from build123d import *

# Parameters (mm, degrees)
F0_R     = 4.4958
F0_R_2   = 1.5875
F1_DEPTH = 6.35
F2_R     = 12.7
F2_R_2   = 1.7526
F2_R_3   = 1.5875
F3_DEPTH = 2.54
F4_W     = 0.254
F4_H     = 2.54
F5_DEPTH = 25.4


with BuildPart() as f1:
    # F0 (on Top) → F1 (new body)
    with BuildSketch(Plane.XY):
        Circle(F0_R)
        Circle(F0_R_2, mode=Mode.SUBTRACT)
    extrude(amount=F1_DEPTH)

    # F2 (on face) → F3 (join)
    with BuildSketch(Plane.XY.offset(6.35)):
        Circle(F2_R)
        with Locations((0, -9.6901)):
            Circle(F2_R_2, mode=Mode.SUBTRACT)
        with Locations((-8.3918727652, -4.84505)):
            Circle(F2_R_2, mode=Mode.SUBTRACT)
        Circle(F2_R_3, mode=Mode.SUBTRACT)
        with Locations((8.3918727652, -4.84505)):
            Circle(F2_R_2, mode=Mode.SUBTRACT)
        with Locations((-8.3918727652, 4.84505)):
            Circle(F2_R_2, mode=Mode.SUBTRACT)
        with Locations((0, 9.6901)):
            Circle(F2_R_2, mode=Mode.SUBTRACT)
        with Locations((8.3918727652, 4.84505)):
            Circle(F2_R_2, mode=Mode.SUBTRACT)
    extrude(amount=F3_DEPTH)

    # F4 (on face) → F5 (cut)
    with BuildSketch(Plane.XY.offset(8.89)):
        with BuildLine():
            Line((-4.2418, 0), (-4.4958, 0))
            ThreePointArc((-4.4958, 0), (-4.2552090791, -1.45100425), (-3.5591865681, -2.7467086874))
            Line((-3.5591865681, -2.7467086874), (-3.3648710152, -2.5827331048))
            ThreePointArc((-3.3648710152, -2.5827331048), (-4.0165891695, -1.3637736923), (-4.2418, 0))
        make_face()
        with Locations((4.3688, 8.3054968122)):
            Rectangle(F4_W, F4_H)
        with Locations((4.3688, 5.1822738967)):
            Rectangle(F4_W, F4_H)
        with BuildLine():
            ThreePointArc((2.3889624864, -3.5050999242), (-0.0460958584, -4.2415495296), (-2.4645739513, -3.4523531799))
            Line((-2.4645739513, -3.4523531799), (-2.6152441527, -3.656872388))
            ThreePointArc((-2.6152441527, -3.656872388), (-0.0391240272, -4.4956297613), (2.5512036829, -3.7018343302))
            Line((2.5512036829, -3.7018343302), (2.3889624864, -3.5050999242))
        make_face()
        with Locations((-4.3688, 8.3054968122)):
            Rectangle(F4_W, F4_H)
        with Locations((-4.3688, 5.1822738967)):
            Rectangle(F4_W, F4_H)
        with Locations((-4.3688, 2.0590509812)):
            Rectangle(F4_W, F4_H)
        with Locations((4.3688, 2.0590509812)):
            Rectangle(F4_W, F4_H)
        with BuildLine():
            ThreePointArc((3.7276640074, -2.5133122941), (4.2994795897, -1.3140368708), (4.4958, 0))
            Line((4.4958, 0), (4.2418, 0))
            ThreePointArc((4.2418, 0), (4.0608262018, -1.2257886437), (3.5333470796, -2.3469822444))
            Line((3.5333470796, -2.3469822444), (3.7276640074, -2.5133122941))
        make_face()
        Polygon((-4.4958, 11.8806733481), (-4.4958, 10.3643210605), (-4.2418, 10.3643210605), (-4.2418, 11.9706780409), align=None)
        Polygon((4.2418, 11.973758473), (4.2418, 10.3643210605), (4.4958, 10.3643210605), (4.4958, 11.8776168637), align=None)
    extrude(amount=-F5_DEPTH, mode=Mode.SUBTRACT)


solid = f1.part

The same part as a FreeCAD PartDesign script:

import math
import FreeCAD as App
import Part
import Sketcher
from FreeCAD import Vector
Q = App.Units.Quantity

doc = App.newDocument("Part")
body = doc.addObject("PartDesign::Body", "Body")

# Sketch on XY plane
sketch1 = body.newObject("Sketcher::SketchObject", "Sketch")
sketch1.AttachmentSupport = (doc.getObject("XY_Plane"), [""])
sketch1.MapMode = "FlatFace"
sketch1.addGeometry([
    Part.Circle(Vector(0, 0, 0), Vector(0, 0, 1), 4.5),
    Part.Circle(Vector(0, 0, 0), Vector(0, 0, 1), 1.6),
], False)
sketch1.addConstraint([
    Sketcher.Constraint("Coincident", 0, 3, -1, 1),
    Sketcher.Constraint("Coincident", 1, 3, -1, 1),
    Sketcher.Constraint("Diameter", 0, Q("0.354 in")),
    Sketcher.Constraint("Diameter", 1, Q("0.125 in")),
])
pad1 = body.newObject("PartDesign::Pad", "Pad")
pad1.Profile = sketch1
pad1.Length = Q("0.25 in")

# Sketch on XY plane
sketch2 = body.newObject("Sketcher::SketchObject", "Sketch001")
sketch2.AttachmentSupport = (doc.getObject("XY_Plane"), [""])
sketch2.MapMode = "FlatFace"
sketch2.AttachmentOffset = App.Placement(Vector(0, 0, 0.25 * 25.4), App.Rotation())
sketch2.addGeometry([
    Part.Circle(Vector(0, 0, 0), Vector(0, 0, 1), 12.7),  # 0
    Part.Circle(Vector(-8.4, -4.8, 0), Vector(0, 0, 1), 1.8),  # 1
    Part.Circle(Vector(0, -9.7, 0), Vector(0, 0, 1), 1.8),  # 2
    Part.Circle(Vector(8.4, -4.8, 0), Vector(0, 0, 1), 1.8),  # 3
    Part.Circle(Vector(-8.4, 4.8, 0), Vector(0, 0, 1), 1.8),  # 4
    Part.Circle(Vector(0, 0, 0), Vector(0, 0, 1), 1.6),  # 5
    Part.Circle(Vector(8.4, 4.8, 0), Vector(0, 0, 1), 1.8),  # 6
    Part.Circle(Vector(0, 9.7, 0), Vector(0, 0, 1), 1.8),  # 7
], False)
sketch2.addConstraint([
    Sketcher.Constraint("Coincident", 0, 3, -1, 1),
    Sketcher.Constraint("Coincident", 5, 3, -1, 1),
    Sketcher.Constraint("Equal", 1, 2),
    Sketcher.Constraint("Equal", 2, 3),
    Sketcher.Constraint("Equal", 3, 4),
    Sketcher.Constraint("Equal", 4, 6),
    Sketcher.Constraint("Equal", 6, 7),
    Sketcher.Constraint("Symmetric", 3, 3, 4, 3, -1, 1),
    Sketcher.Constraint("Symmetric", 1, 3, 6, 3, -1, 1),
    Sketcher.Constraint("Symmetric", 2, 3, 7, 3, -1, 1),
    Sketcher.Constraint("Symmetric", 1, 3, 3, 3, -2),
    Sketcher.Constraint("PointOnObject", 2, 3, -2),
    Sketcher.Constraint("Diameter", 0, Q("1 in")),
    Sketcher.Constraint("Diameter", 1, Q("0.138 in")),
    Sketcher.Constraint("Diameter", 5, Q("0.125 in")),
    Sketcher.Constraint("DistanceY", 2, 3, -1, 1, Q("0.3815 in")),
    Sketcher.Constraint("DistanceY", 1, 3, 4, 3, Q("0.3815 in")),
    Sketcher.Constraint("DistanceX", 1, 3, -1, 1, Q("8.391873 mm")),
])
pad2 = body.newObject("PartDesign::Pad", "Pad001")
pad2.Profile = sketch2
pad2.Length = Q("0.1 in")

# Sketch on XY plane
sketch3 = body.newObject("Sketcher::SketchObject", "Sketch002")
sketch3.AttachmentSupport = (doc.getObject("XY_Plane"), [""])
sketch3.MapMode = "FlatFace"
sketch3.AttachmentOffset = App.Placement(Vector(0, 0, 0.35 * 25.4), App.Rotation())
sketch3.addGeometry([
    Part.LineSegment(Vector(-4.24, 0, 0), Vector(-4.5, 0, 0)),  # 0
    Part.ArcOfCircle(Part.Circle(Vector(0, 0, 0), Vector(0, 0, 1), 4.5), math.radians(180), math.radians(218)),  # 1
    Part.LineSegment(Vector(-3.56, -2.75, 0), Vector(-3.36, -2.58, 0)),  # 2
    Part.ArcOfCircle(Part.Circle(Vector(0, 0, 0), Vector(0, 0, 1), 4.24), math.radians(180), math.radians(218)),  # 3
    Part.LineSegment(Vector(4.24, 9.58, 0), Vector(4.24, 7.04, 0)),  # 4
    Part.LineSegment(Vector(4.24, 7.04, 0), Vector(4.5, 7.04, 0)),  # 5
    Part.LineSegment(Vector(4.5, 7.04, 0), Vector(4.5, 9.58, 0)),  # 6
    Part.LineSegment(Vector(4.5, 9.58, 0), Vector(4.24, 9.58, 0)),  # 7
    Part.LineSegment(Vector(4.24, 6.45, 0), Vector(4.24, 3.91, 0)),  # 8
    Part.LineSegment(Vector(4.24, 3.91, 0), Vector(4.5, 3.91, 0)),  # 9
    Part.LineSegment(Vector(4.5, 3.91, 0), Vector(4.5, 6.45, 0)),  # 10
    Part.LineSegment(Vector(4.5, 6.45, 0), Vector(4.24, 6.45, 0)),  # 11
    Part.ArcOfCircle(Part.Circle(Vector(0, 0, 0), Vector(0, 0, 1), 4.24), math.radians(-126), math.radians(-56)),  # 12
    Part.LineSegment(Vector(-2.46, -3.45, 0), Vector(-2.62, -3.66, 0)),  # 13
    Part.ArcOfCircle(Part.Circle(Vector(0, 0, 0), Vector(0, 0, 1), 4.5), math.radians(-126), math.radians(-55)),  # 14
    Part.LineSegment(Vector(2.55, -3.7, 0), Vector(2.39, -3.51, 0)),  # 15
    Part.LineSegment(Vector(-4.5, 9.58, 0), Vector(-4.5, 7.04, 0)),  # 16
    Part.LineSegment(Vector(-4.5, 7.04, 0), Vector(-4.24, 7.04, 0)),  # 17
    Part.LineSegment(Vector(-4.24, 7.04, 0), Vector(-4.24, 9.58, 0)),  # 18
    Part.LineSegment(Vector(-4.24, 9.58, 0), Vector(-4.5, 9.58, 0)),  # 19
    Part.LineSegment(Vector(-4.5, 6.45, 0), Vector(-4.5, 3.91, 0)),  # 20
    Part.LineSegment(Vector(-4.5, 3.91, 0), Vector(-4.24, 3.91, 0)),  # 21
    Part.LineSegment(Vector(-4.24, 3.91, 0), Vector(-4.24, 6.45, 0)),  # 22
    Part.LineSegment(Vector(-4.24, 6.45, 0), Vector(-4.5, 6.45, 0)),  # 23
    Part.LineSegment(Vector(-4.5, 3.33, 0), Vector(-4.5, 0.79, 0)),  # 24
    Part.LineSegment(Vector(-4.5, 0.79, 0), Vector(-4.24, 0.79, 0)),  # 25
    Part.LineSegment(Vector(-4.24, 0.79, 0), Vector(-4.24, 3.33, 0)),  # 26
    Part.LineSegment(Vector(-4.24, 3.33, 0), Vector(-4.5, 3.33, 0)),  # 27
    Part.LineSegment(Vector(4.24, 3.33, 0), Vector(4.24, 0.79, 0)),  # 28
    Part.LineSegment(Vector(4.24, 0.79, 0), Vector(4.5, 0.79, 0)),  # 29
    Part.LineSegment(Vector(4.5, 0.79, 0), Vector(4.5, 3.33, 0)),  # 30
    Part.LineSegment(Vector(4.5, 3.33, 0), Vector(4.24, 3.33, 0)),  # 31
    Part.ArcOfCircle(Part.Circle(Vector(0, 0, 0), Vector(0, 0, 1), 4.5), math.radians(-34), math.radians(0)),  # 32
    Part.LineSegment(Vector(4.5, 0, 0), Vector(4.24, 0, 0)),  # 33
    Part.ArcOfCircle(Part.Circle(Vector(0, 0, 0), Vector(0, 0, 1), 4.24), math.radians(-34), math.radians(0)),  # 34
    Part.LineSegment(Vector(3.53, -2.35, 0), Vector(3.73, -2.51, 0)),  # 35
    Part.LineSegment(Vector(-4.5, 11.88, 0), Vector(-4.5, 10.36, 0)),  # 36
    Part.LineSegment(Vector(-4.5, 10.36, 0), Vector(-4.24, 10.36, 0)),  # 37
    Part.LineSegment(Vector(-4.24, 10.36, 0), Vector(-4.24, 11.97, 0)),  # 38
    Part.LineSegment(Vector(-4.24, 11.97, 0), Vector(-4.5, 11.88, 0)),  # 39
    Part.LineSegment(Vector(4.24, 11.97, 0), Vector(4.24, 10.36, 0)),  # 40
    Part.LineSegment(Vector(4.24, 10.36, 0), Vector(4.5, 10.36, 0)),  # 41
    Part.LineSegment(Vector(4.5, 10.36, 0), Vector(4.5, 11.88, 0)),  # 42
    Part.LineSegment(Vector(4.5, 11.88, 0), Vector(4.24, 11.97, 0)),  # 43
], False)
sketch3.addConstraint([
    Sketcher.Constraint("Coincident", 0, 2, 1, 1),
    Sketcher.Constraint("Coincident", 1, 2, 2, 1),
    Sketcher.Constraint("Coincident", 2, 2, 3, 2),
    Sketcher.Constraint("Coincident", 3, 1, 0, 1),
    Sketcher.Constraint("Coincident", 4, 2, 5, 1),
    Sketcher.Constraint("Coincident", 5, 2, 6, 1),
    Sketcher.Constraint("Coincident", 6, 2, 7, 1),
    Sketcher.Constraint("Coincident", 7, 2, 4, 1),
    Sketcher.Constraint("Coincident", 8, 2, 9, 1),
    Sketcher.Constraint("Coincident", 9, 2, 10, 1),
    Sketcher.Constraint("Coincident", 10, 2, 11, 1),
    Sketcher.Constraint("Coincident", 11, 2, 8, 1),
    Sketcher.Constraint("Coincident", 12, 1, 13, 1),
    Sketcher.Constraint("Coincident", 13, 2, 14, 1),
    Sketcher.Constraint("Coincident", 14, 2, 15, 1),
    Sketcher.Constraint("Coincident", 15, 2, 12, 2),
    Sketcher.Constraint("Coincident", 16, 2, 17, 1),
    Sketcher.Constraint("Coincident", 17, 2, 18, 1),
    Sketcher.Constraint("Coincident", 18, 2, 19, 1),
    Sketcher.Constraint("Coincident", 19, 2, 16, 1),
    Sketcher.Constraint("Coincident", 20, 2, 21, 1),
    Sketcher.Constraint("Coincident", 21, 2, 22, 1),
    Sketcher.Constraint("Coincident", 22, 2, 23, 1),
    Sketcher.Constraint("Coincident", 23, 2, 20, 1),
    Sketcher.Constraint("Coincident", 24, 2, 25, 1),
    Sketcher.Constraint("Coincident", 25, 2, 26, 1),
    Sketcher.Constraint("Coincident", 26, 2, 27, 1),
    Sketcher.Constraint("Coincident", 27, 2, 24, 1),
    Sketcher.Constraint("Coincident", 28, 2, 29, 1),
    Sketcher.Constraint("Coincident", 29, 2, 30, 1),
    Sketcher.Constraint("Coincident", 30, 2, 31, 1),
    Sketcher.Constraint("Coincident", 31, 2, 28, 1),
    Sketcher.Constraint("Coincident", 32, 2, 33, 1),
    Sketcher.Constraint("Coincident", 33, 2, 34, 2),
    Sketcher.Constraint("Coincident", 34, 1, 35, 1),
    Sketcher.Constraint("Coincident", 35, 2, 32, 1),
    Sketcher.Constraint("Coincident", 36, 2, 37, 1),
    Sketcher.Constraint("Coincident", 37, 2, 38, 1),
    Sketcher.Constraint("Coincident", 38, 2, 39, 1),
    Sketcher.Constraint("Coincident", 39, 2, 36, 1),
    Sketcher.Constraint("Coincident", 40, 2, 41, 1),
    Sketcher.Constraint("Coincident", 41, 2, 42, 1),
    Sketcher.Constraint("Coincident", 42, 2, 43, 1),
    Sketcher.Constraint("Coincident", 43, 2, 40, 1),
    Sketcher.Constraint("Horizontal", 0),
    Sketcher.Constraint("Vertical", 4),
    Sketcher.Constraint("Horizontal", 5),
    Sketcher.Constraint("Vertical", 6),
    Sketcher.Constraint("Horizontal", 7),
    Sketcher.Constraint("Vertical", 8),
    Sketcher.Constraint("Horizontal", 9),
    Sketcher.Constraint("Vertical", 10),
    Sketcher.Constraint("Horizontal", 11),
    Sketcher.Constraint("Vertical", 16),
    Sketcher.Constraint("Horizontal", 17),
    Sketcher.Constraint("Vertical", 18),
    Sketcher.Constraint("Horizontal", 19),
    Sketcher.Constraint("Vertical", 20),
    Sketcher.Constraint("Horizontal", 21),
    Sketcher.Constraint("Vertical", 22),
    Sketcher.Constraint("Horizontal", 23),
    Sketcher.Constraint("Vertical", 24),
    Sketcher.Constraint("Horizontal", 25),
    Sketcher.Constraint("Vertical", 26),
    Sketcher.Constraint("Horizontal", 27),
    Sketcher.Constraint("Vertical", 28),
    Sketcher.Constraint("Horizontal", 29),
    Sketcher.Constraint("Vertical", 30),
    Sketcher.Constraint("Horizontal", 31),
    Sketcher.Constraint("Horizontal", 33),
    Sketcher.Constraint("Vertical", 36),
    Sketcher.Constraint("Horizontal", 37),
    Sketcher.Constraint("Vertical", 38),
    Sketcher.Constraint("Vertical", 40),
    Sketcher.Constraint("Horizontal", 41),
    Sketcher.Constraint("Vertical", 42),
    Sketcher.Constraint("Coincident", 1, 3, -1, 1),
    Sketcher.Constraint("Coincident", 3, 3, -1, 1),
    Sketcher.Constraint("Coincident", 12, 3, -1, 1),
    Sketcher.Constraint("Coincident", 14, 3, -1, 1),
    Sketcher.Constraint("Coincident", 32, 3, -1, 1),
    Sketcher.Constraint("Coincident", 34, 3, -1, 1),
    Sketcher.Constraint("Equal", 3, 12),
    Sketcher.Constraint("Equal", 1, 14),
    Sketcher.Constraint("Equal", 14, 32),
    Sketcher.Constraint("Equal", 12, 34),
    Sketcher.Constraint("Symmetric", 5, 2, 16, 2, -2),
    Sketcher.Constraint("Symmetric", 7, 2, 18, 2, -2),
    Sketcher.Constraint("Symmetric", 9, 2, 20, 2, -2),
    Sketcher.Constraint("Symmetric", 11, 2, 22, 2, -2),
    Sketcher.Constraint("Symmetric", 25, 2, 28, 2, -2),
    Sketcher.Constraint("Symmetric", 27, 2, 30, 2, -2),
    Sketcher.Constraint("Symmetric", 37, 2, 40, 2, -2),
    Sketcher.Constraint("PointOnObject", 0, 2, -1),
    Sketcher.Constraint("PointOnObject", 32, 2, -1),
    Sketcher.Constraint("Vertical", 7, 2, 8, 2),
    Sketcher.Constraint("Vertical", 6, 2, 9, 2),
    Sketcher.Constraint("Vertical", 0, 2, 16, 2),
    Sketcher.Constraint("Vertical", 3, 1, 17, 2),
    Sketcher.Constraint("Vertical", 23, 2, 24, 2),
    Sketcher.Constraint("Vertical", 22, 2, 25, 2),
    Sketcher.Constraint("Vertical", 27, 2, 36, 2),
    Sketcher.Constraint("Vertical", 26, 2, 37, 2),
    Sketcher.Constraint("Vertical", 32, 2, 41, 2),
    Sketcher.Constraint("Equal", 6, 8),
    Sketcher.Constraint("Equal", 22, 24),
    Sketcher.Constraint("DistanceY", 4, 2, 4, 1, Q("0.1 in")),
    Sketcher.Constraint("Radius", 1, Q("0.177 in")),
    Sketcher.Constraint("Radius", 3, Q("0.167 in")),
    Sketcher.Constraint("DistanceY", 15, 2, -1, 1, Q("3.5051 mm")),
    Sketcher.Constraint("DistanceX", 15, 2, 35, 2, Q("1.338702 mm")),
    Sketcher.Constraint("DistanceY", 36, 2, 36, 1, Q("1.516352 mm")),
    Sketcher.Constraint("DistanceY", 38, 1, 38, 2, Q("1.606357 mm")),
    Sketcher.Constraint("DistanceY", 40, 2, 40, 1, Q("1.609437 mm")),
    Sketcher.Constraint("DistanceY", 42, 1, 42, 2, Q("1.513296 mm")),
    Sketcher.Constraint("DistanceY", 1, 2, -1, 1, Q("2.746709 mm")),
    Sketcher.Constraint("DistanceX", 2, 2, -1, 1, Q("3.364871 mm")),
    Sketcher.Constraint("DistanceY", -1, 1, 24, 2, Q("0.789051 mm")),
    Sketcher.Constraint("DistanceY", -1, 1, 36, 2, Q("10.364321 mm")),
    Sketcher.Constraint("DistanceY", 12, 1, 2, 2, Q("0.86962 mm")),
    Sketcher.Constraint("DistanceX", 13, 2, 12, 1, Q("0.15067 mm")),
    Sketcher.Constraint("DistanceX", 15, 2, 14, 2, Q("0.162241 mm")),
    Sketcher.Constraint("DistanceY", 35, 2, 34, 1, Q("0.16633 mm")),
    Sketcher.Constraint("DistanceY", 18, 2, 38, 2, Q("2.395181 mm")),
    Sketcher.Constraint("DistanceY", -1, 1, 8, 2, Q("3.912274 mm")),
])
pocket1 = body.newObject("PartDesign::Pocket", "Pocket")
pocket1.Profile = sketch3
pocket1.Length = Q("1 in")

doc.recompute()
